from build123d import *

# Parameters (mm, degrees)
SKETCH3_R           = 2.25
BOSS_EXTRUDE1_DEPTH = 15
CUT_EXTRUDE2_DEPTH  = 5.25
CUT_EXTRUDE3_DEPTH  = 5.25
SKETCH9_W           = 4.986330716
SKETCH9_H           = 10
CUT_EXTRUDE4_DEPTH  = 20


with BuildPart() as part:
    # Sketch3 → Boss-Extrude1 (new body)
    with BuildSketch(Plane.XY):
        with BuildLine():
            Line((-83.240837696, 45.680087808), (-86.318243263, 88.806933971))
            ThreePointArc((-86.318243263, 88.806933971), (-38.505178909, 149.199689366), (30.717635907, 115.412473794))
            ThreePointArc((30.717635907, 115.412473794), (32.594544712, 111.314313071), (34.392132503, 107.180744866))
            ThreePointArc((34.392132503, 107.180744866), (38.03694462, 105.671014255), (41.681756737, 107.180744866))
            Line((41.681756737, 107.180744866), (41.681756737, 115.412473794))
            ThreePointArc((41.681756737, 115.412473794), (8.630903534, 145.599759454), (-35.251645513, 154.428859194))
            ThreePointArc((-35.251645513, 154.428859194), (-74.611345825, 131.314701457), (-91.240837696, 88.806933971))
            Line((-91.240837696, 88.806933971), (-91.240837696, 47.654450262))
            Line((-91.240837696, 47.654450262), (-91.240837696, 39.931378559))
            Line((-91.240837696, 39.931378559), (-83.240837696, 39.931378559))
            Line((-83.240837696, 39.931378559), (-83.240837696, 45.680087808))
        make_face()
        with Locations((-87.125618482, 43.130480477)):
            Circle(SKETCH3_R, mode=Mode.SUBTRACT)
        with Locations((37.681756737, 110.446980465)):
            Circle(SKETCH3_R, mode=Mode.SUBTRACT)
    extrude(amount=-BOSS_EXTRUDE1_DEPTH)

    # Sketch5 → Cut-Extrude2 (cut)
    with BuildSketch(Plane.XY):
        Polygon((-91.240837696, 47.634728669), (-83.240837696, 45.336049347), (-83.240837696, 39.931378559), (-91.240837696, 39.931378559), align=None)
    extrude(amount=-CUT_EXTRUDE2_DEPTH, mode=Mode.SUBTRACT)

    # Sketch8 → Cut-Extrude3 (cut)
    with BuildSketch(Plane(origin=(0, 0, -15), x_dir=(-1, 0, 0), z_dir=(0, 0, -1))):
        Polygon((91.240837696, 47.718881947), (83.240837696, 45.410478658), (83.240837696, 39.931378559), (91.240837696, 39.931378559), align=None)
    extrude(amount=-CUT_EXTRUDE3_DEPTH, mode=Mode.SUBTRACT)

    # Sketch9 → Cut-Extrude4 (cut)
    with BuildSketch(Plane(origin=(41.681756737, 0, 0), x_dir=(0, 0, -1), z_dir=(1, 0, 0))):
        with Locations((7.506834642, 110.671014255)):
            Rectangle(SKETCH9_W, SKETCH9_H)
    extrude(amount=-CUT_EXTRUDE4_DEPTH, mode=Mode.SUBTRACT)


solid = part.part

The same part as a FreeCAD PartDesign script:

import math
import FreeCAD as App
import Part
import Sketcher

V = App.Vector

doc = App.newDocument("Part")
body = doc.addObject("PartDesign::Body", "Body")

# Sketch on XY plane
sketch1 = body.newObject("Sketcher::SketchObject", "Sketch")
sketch1.AttachmentSupport = (doc.getObject("XY_Plane"), [""])
sketch1.MapMode = "FlatFace"
sketch1.addGeometry([
    Part.LineSegment(V(-83.2, 45.7, 0), V(-86.3, 88.8, 0)),  # 0
    Part.ArcOfCircle(Part.Circle(V(-24.9, 89.3, 0), V(0, 0, 1), 61.4), math.radians(25), math.radians(180)),  # 1
    Part.ArcOfCircle(Part.Circle(V(-181, 16, 0), V(0, 0, 1), 233.9), math.radians(22.95), math.radians(25.16)),  # 2
    Part.ArcOfCircle(Part.Circle(V(38, 110.8, 0), V(0, 0, 1), 5.2), math.radians(-135), math.radians(-45)),  # 3
    Part.LineSegment(V(41.7, 107.2, 0), V(41.7, 115.4, 0)),  # 4
    Part.ArcOfCircle(Part.Circle(V(-29.2, 71, 0), V(0, 0, 1), 83.7), math.radians(32), math.radians(94)),  # 5
    Part.ArcOfCircle(Part.Circle(V(-21.6, 86.1, 0), V(0, 0, 1), 69.7), math.radians(101), math.radians(178)),  # 6
    Part.LineSegment(V(-91.2, 88.8, 0), V(-91.2, 39.9, 0)),  # 7
    Part.LineSegment(V(-91.2, 39.9, 0), V(-83.2, 39.9, 0)),  # 8
    Part.LineSegment(V(-83.2, 39.9, 0), V(-83.2, 45.7, 0)),  # 9
    Part.Circle(V(-87.1, 43.1, 0), V(0, 0, 1), 2.2),  # 10
    Part.Circle(V(37.7, 110.4, 0), V(0, 0, 1), 2.2),  # 11
], False)
sketch1.addConstraint([
    Sketcher.Constraint("Coincident", 0, 2, 1, 2),
    Sketcher.Constraint("Tangent", 1, 1, 2, 2),
    Sketcher.Constraint("Coincident", 2, 1, 3, 1),
    Sketcher.Constraint("Coincident", 3, 2, 4, 1),
    Sketcher.Constraint("Coincident", 4, 2, 5, 1),
    Sketcher.Constraint("Coincident", 5, 2, 6, 1),
    Sketcher.Constraint("Coincident", 6, 2, 7, 1),
    Sketcher.Constraint("Coincident", 7, 2, 8, 1),
    Sketcher.Constraint("Coincident", 8, 2, 9, 1),
    Sketcher.Constraint("Coincident", 9, 2, 0, 1),
    Sketcher.Constraint("Vertical", 4),
    Sketcher.Constraint("Vertical", 7),
    Sketcher.Constraint("Horizontal", 8),
    Sketcher.Constraint("Vertical", 9),
    Sketcher.Constraint("Equal", 10, 11),
    Sketcher.Constraint("Horizontal", 2, 1, 3, 2),
    Sketcher.Constraint("Horizontal", 1, 1, 4, 2),
    Sketcher.Constraint("Horizontal", 0, 2, 6, 2),
    Sketcher.Constraint("Diameter", 10, 4.5),
    Sketcher.Constraint("DistanceX", 8, 1, 8, 2, 8.0),
    Sketcher.Constraint("DistanceX", 11, 3, 3, 2, 4.0),
    Sketcher.Constraint("Radius", 5, 83.66656),
    Sketcher.Constraint("Radius", 6, 69.728811),
    Sketcher.Constraint("Radius", 1, 61.433006),
    Sketcher.Constraint("Radius", 2, 233.900057),
    Sketcher.Constraint("Radius", 3, 5.154543),
    Sketcher.Constraint("DistanceY", 4, 1, 4, 2, 8.231729),
    Sketcher.Constraint("DistanceY", 9, 1, 9, 2, 5.748709),
    Sketcher.Constraint("DistanceY", 10, 3, 11, 3, 67.3165),
    Sketcher.Constraint("DistanceY", 7, 2, 10, 3, 3.199102),
    Sketcher.Constraint("DistanceY", 7, 2, 7, 1, 48.875555),
    Sketcher.Constraint("DistanceX", 2, 3, -1, 1, 180.992151),
    Sketcher.Constraint("DistanceY", -1, 1, 2, 3, 15.973032),
    Sketcher.Constraint("DistanceX", 5, 3, -1, 1, 29.211831),
    Sketcher.Constraint("DistanceY", -1, 1, 5, 3, 70.980589),
    Sketcher.Constraint("DistanceX", 10, 3, -1, 1, 87.125618),
    Sketcher.Constraint("DistanceY", -1, 1, 10, 3, 43.13048),
    Sketcher.Constraint("DistanceY", -1, 1, 5, 2, 154.428859),
    Sketcher.Constraint("DistanceY", 2, 3, 1, 3, 73.322031),
    Sketcher.Constraint("DistanceY", 6, 3, 1, 3, 3.238848),
])
pad1 = body.newObject("PartDesign::Pad", "Pad")
pad1.Profile = sketch1
pad1.Length = 15
pad1.Reversed = True

# Sketch on XY plane
sketch2 = body.newObject("Sketcher::SketchObject", "Sketch001")
sketch2.AttachmentSupport = (doc.getObject("XY_Plane"), [""])
sketch2.MapMode = "FlatFace"
sketch2.addGeometry([
    Part.LineSegment(V(-83, 45, 0), V(-91, 48, 0)),
    Part.LineSegment(V(-91, 48, 0), V(-91, 40, 0)),
    Part.LineSegment(V(-91, 40, 0), V(-83, 40, 0)),
    Part.LineSegment(V(-83, 40, 0), V(-83, 45, 0)),
], False)
sketch2.addConstraint([
    Sketcher.Constraint("Coincident", 0, 2, 1, 1),
    Sketcher.Constraint("Coincident", 1, 2, 2, 1),
    Sketcher.Constraint("Coincident", 2, 2, 3, 1),
    Sketcher.Constraint("Coincident", 3, 2, 0, 1),
    Sketcher.Constraint("Vertical", 1),
    Sketcher.Constraint("Horizontal", 2),
    Sketcher.Constraint("Vertical", 3),
    Sketcher.Constraint("DistanceX", 2, 1, 2, 2, 8.0),
    Sketcher.Constraint("DistanceY", 1, 2, 1, 1, 7.70335),
    Sketcher.Constraint("DistanceY", 3, 1, 3, 2, 5.404671),
    Sketcher.Constraint("DistanceY", -1, 1, 0, 2, 47.634729),
    Sketcher.Constraint("DistanceX", 0, 2, -1, 1, 91.240838),
])
pocket1 = body.newObject("PartDesign::Pocket", "Pocket")
pocket1.Profile = sketch2
pocket1.Length = 5.25

# Sketch on XY plane
sketch3 = body.newObject("Sketcher::SketchObject", "Sketch002")
sketch3.AttachmentSupport = (doc.getObject("XY_Plane"), [""])
sketch3.MapMode = "FlatFace"
sketch3.AttachmentOffset = App.Placement(V(0, 0, -15), App.Rotation())
sketch3.addGeometry([
    Part.LineSegment(V(-91, 48, 0), V(-83, 45, 0)),
    Part.LineSegment(V(-83, 45, 0), V(-83, 40, 0)),
    Part.LineSegment(V(-83, 40, 0), V(-91, 40, 0)),
    Part.LineSegment(V(-91, 40, 0), V(-91, 48, 0)),
], False)
sketch3.addConstraint([
    Sketcher.Constraint("Coincident", 0, 2, 1, 1),
    Sketcher.Constraint("Coincident", 1, 2, 2, 1),
    Sketcher.Constraint("Coincident", 2, 2, 3, 1),
    Sketcher.Constraint("Coincident", 3, 2, 0, 1),
    Sketcher.Constraint("Vertical", 1),
    Sketcher.Constraint("Horizontal", 2),
    Sketcher.Constraint("Vertical", 3),
    Sketcher.Constraint("DistanceX", 2, 2, 2, 1, 8.0),
    Sketcher.Constraint("DistanceY", 1, 2, 1, 1, 5.4791),
    Sketcher.Constraint("DistanceY", 3, 1, 3, 2, 7.787503),
    Sketcher.Constraint("DistanceY", -1, 1, 0, 2, 45.410479),
    Sketcher.Constraint("DistanceX", 0, 2, -1, 1, 83.240838),
])
pocket2 = body.newObject("PartDesign::Pocket", "Pocket001")
pocket2.Profile = sketch3
pocket2.Length = 5.25
pocket2.Reversed = True

# Sketch on YZ plane
sketch4 = body.newObject("Sketcher::SketchObject", "Sketch003")
sketch4.AttachmentSupport = (doc.getObject("YZ_Plane"), [""])
sketch4.MapMode = "FlatFace"
sketch4.AttachmentOffset = App.Placement(V(0, 0, 41.681757), App.Rotation())
sketch4.addGeometry([
    Part.LineSegment(V(115.7, -5, 0), V(105.7, -5, 0)),
    Part.LineSegment(V(105.7, -5, 0), V(105.7, -10, 0)),
    Part.LineSegment(V(105.7, -10, 0), V(115.7, -10, 0)),
    Part.LineSegment(V(115.7, -10, 0), V(115.7, -5, 0)),
], False)
sketch4.addConstraint([
    Sketcher.Constraint("Coincident", 0, 2, 1, 1),
    Sketcher.Constraint("Coincident", 1, 2, 2, 1),
    Sketcher.Constraint("Coincident", 2, 2, 3, 1),
    Sketcher.Constraint("Coincident", 3, 2, 0, 1),
    Sketcher.Constraint("Horizontal", 0),
    Sketcher.Constraint("Vertical", 1),
    Sketcher.Constraint("Horizontal", 2),
    Sketcher.Constraint("Vertical", 3),
    Sketcher.Constraint("DistanceX", 0, 2, 0, 1, 10.0),
    Sketcher.Constraint("DistanceY", 1, 2, -1, 1, 10.0),
    Sketcher.Constraint("DistanceY", 1, 2, 1, 1, 4.986331),
    Sketcher.Constraint("DistanceX", -1, 1, 0, 2, 105.671014),
])
pocket3 = body.newObject("PartDesign::Pocket", "Pocket002")
pocket3.Profile = sketch4
pocket3.Length = 20

doc.recompute()
